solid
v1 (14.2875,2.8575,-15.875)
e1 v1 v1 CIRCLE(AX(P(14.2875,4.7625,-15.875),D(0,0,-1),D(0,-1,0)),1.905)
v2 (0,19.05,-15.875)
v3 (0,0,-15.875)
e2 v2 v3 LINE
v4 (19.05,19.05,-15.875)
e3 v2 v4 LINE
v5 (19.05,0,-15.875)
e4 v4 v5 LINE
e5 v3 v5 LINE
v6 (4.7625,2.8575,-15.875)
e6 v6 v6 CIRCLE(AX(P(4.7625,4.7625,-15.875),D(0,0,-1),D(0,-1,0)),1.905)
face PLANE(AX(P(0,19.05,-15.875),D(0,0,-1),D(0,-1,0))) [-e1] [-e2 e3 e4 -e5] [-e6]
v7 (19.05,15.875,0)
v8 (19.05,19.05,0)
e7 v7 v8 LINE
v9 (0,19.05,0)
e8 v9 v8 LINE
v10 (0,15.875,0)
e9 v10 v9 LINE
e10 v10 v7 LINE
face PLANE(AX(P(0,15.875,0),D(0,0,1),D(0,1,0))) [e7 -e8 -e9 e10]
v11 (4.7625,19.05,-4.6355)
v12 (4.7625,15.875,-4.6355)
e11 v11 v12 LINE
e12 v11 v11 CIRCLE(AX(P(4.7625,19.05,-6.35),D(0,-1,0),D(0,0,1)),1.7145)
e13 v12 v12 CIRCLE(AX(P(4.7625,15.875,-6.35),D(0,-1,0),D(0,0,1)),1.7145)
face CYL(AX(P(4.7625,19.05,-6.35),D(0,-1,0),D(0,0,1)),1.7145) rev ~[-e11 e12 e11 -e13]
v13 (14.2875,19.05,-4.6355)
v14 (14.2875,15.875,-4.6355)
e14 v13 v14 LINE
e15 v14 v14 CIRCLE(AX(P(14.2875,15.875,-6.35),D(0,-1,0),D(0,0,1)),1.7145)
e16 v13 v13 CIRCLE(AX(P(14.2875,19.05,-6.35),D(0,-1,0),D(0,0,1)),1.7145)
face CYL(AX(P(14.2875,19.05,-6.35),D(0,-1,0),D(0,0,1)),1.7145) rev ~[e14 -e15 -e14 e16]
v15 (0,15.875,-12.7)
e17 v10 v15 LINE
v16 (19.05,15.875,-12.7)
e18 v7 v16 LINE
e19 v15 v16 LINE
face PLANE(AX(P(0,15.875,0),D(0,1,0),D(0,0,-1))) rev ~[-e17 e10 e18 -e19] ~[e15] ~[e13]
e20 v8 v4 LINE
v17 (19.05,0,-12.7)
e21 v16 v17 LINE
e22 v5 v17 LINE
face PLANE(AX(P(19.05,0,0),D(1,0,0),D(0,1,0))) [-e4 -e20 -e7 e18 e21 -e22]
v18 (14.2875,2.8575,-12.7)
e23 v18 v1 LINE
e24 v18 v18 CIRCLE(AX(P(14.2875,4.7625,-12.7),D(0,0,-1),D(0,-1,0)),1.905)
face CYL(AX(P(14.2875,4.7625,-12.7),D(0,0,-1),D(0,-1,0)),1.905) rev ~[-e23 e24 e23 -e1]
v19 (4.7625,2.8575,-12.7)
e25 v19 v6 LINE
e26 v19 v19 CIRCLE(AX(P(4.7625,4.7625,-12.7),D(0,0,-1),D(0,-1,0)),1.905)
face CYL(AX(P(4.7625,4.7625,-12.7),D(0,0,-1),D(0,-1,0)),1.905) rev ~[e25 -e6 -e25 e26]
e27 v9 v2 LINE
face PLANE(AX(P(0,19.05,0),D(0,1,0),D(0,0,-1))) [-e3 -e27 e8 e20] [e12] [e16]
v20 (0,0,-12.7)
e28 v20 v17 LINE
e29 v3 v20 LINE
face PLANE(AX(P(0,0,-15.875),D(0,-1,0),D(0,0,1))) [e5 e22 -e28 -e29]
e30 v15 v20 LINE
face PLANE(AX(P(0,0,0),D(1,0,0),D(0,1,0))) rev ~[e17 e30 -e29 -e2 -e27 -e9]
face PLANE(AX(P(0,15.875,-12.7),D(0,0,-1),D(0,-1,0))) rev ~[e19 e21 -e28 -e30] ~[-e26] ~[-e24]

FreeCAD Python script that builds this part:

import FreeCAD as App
import Part
import Sketcher

V = App.Vector
Q = App.Units.Quantity


def add_polygon(sketch, points):
    """Adds a closed chain of lines whose ends are joined by coincident constraints."""
    first, n = sketch.GeometryCount, len(points)
    for a, b in zip(points, points[1:] + points[:1]):
        sketch.addGeometry(Part.LineSegment(App.Vector(*a, 0), App.Vector(*b, 0)), False)
    for i in range(n):
        sketch.addConstraint(Sketcher.Constraint("Coincident", first + i, 2, first + (i + 1) % n, 1))

doc = App.newDocument("Part")
body = doc.addObject("PartDesign::Body", "Body")

sketch1 = body.newObject("Sketcher::SketchObject", "Sketch")
sketch1.AttachmentSupport = (doc.getObject("YZ_Plane"), [""])
sketch1.MapMode = "FlatFace"
add_polygon(sketch1, [(19.1, 0), (15.9, 0), (15.9, -12.7), (0, -12.7), (0, -15.9), (19.1, -15.9)])
sketch1.addConstraint(Sketcher.Constraint("Horizontal", 0))
sketch1.addConstraint(Sketcher.Constraint("Vertical", 1))
sketch1.addConstraint(Sketcher.Constraint("Horizontal", 2))
sketch1.addConstraint(Sketcher.Constraint("Vertical", 3))
sketch1.addConstraint(Sketcher.Constraint("Horizontal", 4))
sketch1.addConstraint(Sketcher.Constraint("Vertical", 5))
sketch1.addConstraint(Sketcher.Constraint("PointOnObject", 0, 2, -1))
sketch1.addConstraint(Sketcher.Constraint("PointOnObject", 2, 2, -2))
sketch1.addConstraint(Sketcher.Constraint("Equal", 0, 3))
sketch1.addConstraint(Sketcher.Constraint("Equal", 2, 5))
sketch1.addConstraint(Sketcher.Constraint("DistanceY", 1, 2, 1, 1, Q("0.5 in")))
sketch1.addConstraint(Sketcher.Constraint("DistanceX", 4, 1, 4, 2, Q("0.75 in")))
pad1 = body.newObject("PartDesign::Pad", "Pad")
pad1.Profile = sketch1
pad1.Length = Q("0.75 in")

sketch2 = body.newObject("Sketcher::SketchObject", "Sketch001")
sketch2.AttachmentSupport = (doc.getObject("XZ_Plane"), [""])
sketch2.MapMode = "FlatFace"
sketch2.AttachmentOffset = App.Placement(V(0, 0, -0.75 * 25.4), App.Rotation())
sketch2.addGeometry(Part.Circle(V(4.8, -6.3, 0), V(0, 0, 1), 1.7), False)
sketch2.addGeometry(Part.Circle(V(14.3, -6.3, 0), V(0, 0, 1), 1.7), False)
sketch2.addConstraint(Sketcher.Constraint("Equal", 0, 1))
sketch2.addConstraint(Sketcher.Constraint("Horizontal", 0, 3, 1, 3))
sketch2.addConstraint(Sketcher.Constraint("Diameter", 0, Q("0.135 in")))
sketch2.addConstraint(Sketcher.Constraint("DistanceY", 0, 3, -1, 1, Q("0.25 in")))
sketch2.addConstraint(Sketcher.Constraint("DistanceX", -1, 1, 0, 3, Q("0.1875 in")))
sketch2.addConstraint(Sketcher.Constraint("DistanceX", -1, 1, 1, 3, Q("0.5625 in")))
doc.recompute()
hole = body.newObject("PartDesign::Hole", "Hole")
hole.Profile = sketch2
hole.ThreadType = "None"
hole.Diameter = Q("0.135 in")
hole.DepthType = "ThroughAll"
hole.Reversed = True

sketch3 = body.newObject("Sketcher::SketchObject", "Sketch002")
sketch3.AttachmentSupport = (doc.getObject("XY_Plane"), [""])
sketch3.MapMode = "FlatFace"
sketch3.AttachmentOffset = App.Placement(V(0, 0, -0.5 * 25.4), App.Rotation())
sketch3.addGeometry(Part.Circle(V(4.8, 4.8, 0), V(0, 0, 1), 1.9), False)
sketch3.addGeometry(Part.Circle(V(14.3, 4.8, 0), V(0, 0, 1), 1.9), False)
sketch3.addConstraint(Sketcher.Constraint("Equal", 0, 1))
sketch3.addConstraint(Sketcher.Constraint("Horizontal", 0, 3, 1, 3))
sketch3.addConstraint(Sketcher.Constraint("Diameter", 0, Q("0.15 in")))
sketch3.addConstraint(Sketcher.Constraint("DistanceX", -1, 1, 0, 3, Q("0.1875 in")))
sketch3.addConstraint(Sketcher.Constraint("DistanceY", -1, 1, 0, 3, Q("0.1875 in")))
sketch3.addConstraint(Sketcher.Constraint("DistanceX", -1, 1, 1, 3, Q("0.5625 in")))
doc.recompute()
hole2 = body.newObject("PartDesign::Hole", "Hole001")
hole2.Profile = sketch3
hole2.ThreadType = "None"
hole2.Diameter = Q("0.15 in")
hole2.DepthType = "ThroughAll"

doc.recompute()
